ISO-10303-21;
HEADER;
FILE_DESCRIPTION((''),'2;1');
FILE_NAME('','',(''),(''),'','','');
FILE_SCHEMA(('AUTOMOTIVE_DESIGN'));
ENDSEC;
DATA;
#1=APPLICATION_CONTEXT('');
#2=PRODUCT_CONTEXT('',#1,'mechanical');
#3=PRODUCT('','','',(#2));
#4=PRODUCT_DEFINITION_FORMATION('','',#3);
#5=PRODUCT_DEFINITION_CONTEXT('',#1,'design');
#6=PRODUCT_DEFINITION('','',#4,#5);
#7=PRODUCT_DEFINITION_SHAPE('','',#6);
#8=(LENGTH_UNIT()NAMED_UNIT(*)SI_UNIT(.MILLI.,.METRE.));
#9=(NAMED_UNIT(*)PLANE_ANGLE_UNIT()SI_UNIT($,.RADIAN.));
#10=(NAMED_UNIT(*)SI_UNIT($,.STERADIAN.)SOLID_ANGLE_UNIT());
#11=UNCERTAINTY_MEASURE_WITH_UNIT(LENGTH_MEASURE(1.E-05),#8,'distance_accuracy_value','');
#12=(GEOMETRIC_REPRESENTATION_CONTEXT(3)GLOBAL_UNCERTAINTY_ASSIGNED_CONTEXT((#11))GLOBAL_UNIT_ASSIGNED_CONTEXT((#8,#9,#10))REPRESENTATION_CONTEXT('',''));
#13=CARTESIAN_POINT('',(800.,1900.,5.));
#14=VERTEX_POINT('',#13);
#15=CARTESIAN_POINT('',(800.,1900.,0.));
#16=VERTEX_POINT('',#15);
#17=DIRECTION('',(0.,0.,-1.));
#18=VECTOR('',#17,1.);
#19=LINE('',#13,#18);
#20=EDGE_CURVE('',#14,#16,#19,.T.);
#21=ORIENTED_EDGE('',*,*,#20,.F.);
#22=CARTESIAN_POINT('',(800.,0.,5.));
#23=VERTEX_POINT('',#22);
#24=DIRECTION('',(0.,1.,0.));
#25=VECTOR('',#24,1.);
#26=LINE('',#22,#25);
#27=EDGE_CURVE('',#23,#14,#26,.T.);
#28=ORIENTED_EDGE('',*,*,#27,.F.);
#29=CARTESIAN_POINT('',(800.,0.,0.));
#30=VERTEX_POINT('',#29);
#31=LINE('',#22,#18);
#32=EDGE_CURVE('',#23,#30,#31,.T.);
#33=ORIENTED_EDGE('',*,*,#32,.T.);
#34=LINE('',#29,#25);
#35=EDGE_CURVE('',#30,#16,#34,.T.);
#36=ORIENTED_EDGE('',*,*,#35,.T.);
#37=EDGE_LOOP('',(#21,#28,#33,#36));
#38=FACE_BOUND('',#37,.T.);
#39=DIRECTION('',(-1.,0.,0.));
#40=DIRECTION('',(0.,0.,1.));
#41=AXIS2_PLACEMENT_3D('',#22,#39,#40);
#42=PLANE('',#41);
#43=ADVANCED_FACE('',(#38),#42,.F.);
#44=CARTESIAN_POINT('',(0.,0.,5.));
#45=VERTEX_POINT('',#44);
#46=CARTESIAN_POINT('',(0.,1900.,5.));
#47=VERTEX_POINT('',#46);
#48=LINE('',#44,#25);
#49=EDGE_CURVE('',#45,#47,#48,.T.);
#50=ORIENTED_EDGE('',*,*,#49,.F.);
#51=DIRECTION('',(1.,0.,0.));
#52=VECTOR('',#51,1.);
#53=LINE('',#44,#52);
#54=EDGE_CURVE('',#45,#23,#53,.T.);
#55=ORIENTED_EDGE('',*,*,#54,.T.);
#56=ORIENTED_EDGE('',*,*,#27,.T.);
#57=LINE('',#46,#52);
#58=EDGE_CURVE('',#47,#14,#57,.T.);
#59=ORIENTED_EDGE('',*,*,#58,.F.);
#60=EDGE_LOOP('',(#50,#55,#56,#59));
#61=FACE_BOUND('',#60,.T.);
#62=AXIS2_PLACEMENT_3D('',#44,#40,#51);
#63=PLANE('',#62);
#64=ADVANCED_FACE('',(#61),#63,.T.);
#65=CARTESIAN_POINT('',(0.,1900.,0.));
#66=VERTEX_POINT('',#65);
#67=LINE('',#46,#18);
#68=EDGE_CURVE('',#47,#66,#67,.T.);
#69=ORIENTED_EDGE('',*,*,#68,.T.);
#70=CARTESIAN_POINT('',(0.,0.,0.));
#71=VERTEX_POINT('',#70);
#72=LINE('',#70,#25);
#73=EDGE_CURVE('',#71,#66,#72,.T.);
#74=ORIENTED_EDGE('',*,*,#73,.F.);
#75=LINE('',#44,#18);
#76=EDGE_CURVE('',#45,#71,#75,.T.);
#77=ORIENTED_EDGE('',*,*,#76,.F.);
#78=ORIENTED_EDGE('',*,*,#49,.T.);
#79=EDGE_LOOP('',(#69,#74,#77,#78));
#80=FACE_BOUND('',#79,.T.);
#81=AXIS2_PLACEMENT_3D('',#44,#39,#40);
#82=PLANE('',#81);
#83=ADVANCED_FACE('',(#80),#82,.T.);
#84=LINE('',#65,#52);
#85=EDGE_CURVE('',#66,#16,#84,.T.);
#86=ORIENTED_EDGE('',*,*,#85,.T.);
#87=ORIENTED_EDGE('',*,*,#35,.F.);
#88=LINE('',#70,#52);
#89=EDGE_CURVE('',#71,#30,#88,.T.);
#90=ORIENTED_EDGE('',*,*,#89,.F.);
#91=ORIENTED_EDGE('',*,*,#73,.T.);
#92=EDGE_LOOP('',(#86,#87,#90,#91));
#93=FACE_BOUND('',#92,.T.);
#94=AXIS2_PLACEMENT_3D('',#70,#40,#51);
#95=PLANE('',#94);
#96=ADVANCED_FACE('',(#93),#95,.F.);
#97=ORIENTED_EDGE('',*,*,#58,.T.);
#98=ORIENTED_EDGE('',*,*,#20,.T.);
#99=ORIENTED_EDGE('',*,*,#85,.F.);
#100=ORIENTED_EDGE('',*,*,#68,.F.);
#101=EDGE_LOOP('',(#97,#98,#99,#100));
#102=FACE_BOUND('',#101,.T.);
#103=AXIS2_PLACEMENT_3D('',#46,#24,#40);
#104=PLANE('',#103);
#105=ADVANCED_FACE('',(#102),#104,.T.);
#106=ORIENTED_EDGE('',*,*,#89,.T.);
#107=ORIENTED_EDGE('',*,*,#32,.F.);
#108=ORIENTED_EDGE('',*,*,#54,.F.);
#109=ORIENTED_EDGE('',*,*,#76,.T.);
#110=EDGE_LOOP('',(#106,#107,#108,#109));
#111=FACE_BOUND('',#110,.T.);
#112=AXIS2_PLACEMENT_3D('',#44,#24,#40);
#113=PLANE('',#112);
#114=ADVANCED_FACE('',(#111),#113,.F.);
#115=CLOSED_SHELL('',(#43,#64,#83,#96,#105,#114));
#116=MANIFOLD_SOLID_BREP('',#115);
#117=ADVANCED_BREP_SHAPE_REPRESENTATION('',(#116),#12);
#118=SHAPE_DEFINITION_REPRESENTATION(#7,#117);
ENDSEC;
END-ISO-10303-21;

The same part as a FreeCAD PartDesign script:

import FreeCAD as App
import Part
import Sketcher

doc = App.newDocument("Part")
body = doc.addObject("PartDesign::Body", "Body")

# Sketch on XY plane
sketch1 = doc.addObject("Sketcher::SketchObject", "Sketch")
body.addObject(sketch1)
sketch1.AttachmentSupport = (doc.XY_Plane, [""])
sketch1.MapMode = "FlatFace"
sketch1.addGeometry([
    Part.LineSegment(App.Vector(0, 1900, 0), App.Vector(0, 0, 0)),
    Part.LineSegment(App.Vector(0, 0, 0), App.Vector(800, 0, 0)),
    Part.LineSegment(App.Vector(800, 0, 0), App.Vector(800, 1900, 0)),
    Part.LineSegment(App.Vector(800, 1900, 0), App.Vector(0, 1900, 0)),
], False)
sketch1.addConstraint([
    Sketcher.Constraint("Coincident", 0, 2, 1, 1),
    Sketcher.Constraint("Coincident", 1, 2, 2, 1),
    Sketcher.Constraint("Coincident", 2, 2, 3, 1),
    Sketcher.Constraint("Coincident", 3, 2, 0, 1),
    Sketcher.Constraint("Vertical", 0),
    Sketcher.Constraint("Horizontal", 1),
    Sketcher.Constraint("Vertical", 2),
    Sketcher.Constraint("Horizontal", 3),
    Sketcher.Constraint("Coincident", 0, 2, -1, 1),
    Sketcher.Constraint("DistanceX", 1, 1, 1, 2, 800.0),
    Sketcher.Constraint("DistanceY", 0, 2, 0, 1, 1900.0),
])
pad1 = doc.addObject("PartDesign::Pad", "Pad")
body.addObject(pad1)
pad1.Profile = sketch1
pad1.Length = 5

doc.recompute()
